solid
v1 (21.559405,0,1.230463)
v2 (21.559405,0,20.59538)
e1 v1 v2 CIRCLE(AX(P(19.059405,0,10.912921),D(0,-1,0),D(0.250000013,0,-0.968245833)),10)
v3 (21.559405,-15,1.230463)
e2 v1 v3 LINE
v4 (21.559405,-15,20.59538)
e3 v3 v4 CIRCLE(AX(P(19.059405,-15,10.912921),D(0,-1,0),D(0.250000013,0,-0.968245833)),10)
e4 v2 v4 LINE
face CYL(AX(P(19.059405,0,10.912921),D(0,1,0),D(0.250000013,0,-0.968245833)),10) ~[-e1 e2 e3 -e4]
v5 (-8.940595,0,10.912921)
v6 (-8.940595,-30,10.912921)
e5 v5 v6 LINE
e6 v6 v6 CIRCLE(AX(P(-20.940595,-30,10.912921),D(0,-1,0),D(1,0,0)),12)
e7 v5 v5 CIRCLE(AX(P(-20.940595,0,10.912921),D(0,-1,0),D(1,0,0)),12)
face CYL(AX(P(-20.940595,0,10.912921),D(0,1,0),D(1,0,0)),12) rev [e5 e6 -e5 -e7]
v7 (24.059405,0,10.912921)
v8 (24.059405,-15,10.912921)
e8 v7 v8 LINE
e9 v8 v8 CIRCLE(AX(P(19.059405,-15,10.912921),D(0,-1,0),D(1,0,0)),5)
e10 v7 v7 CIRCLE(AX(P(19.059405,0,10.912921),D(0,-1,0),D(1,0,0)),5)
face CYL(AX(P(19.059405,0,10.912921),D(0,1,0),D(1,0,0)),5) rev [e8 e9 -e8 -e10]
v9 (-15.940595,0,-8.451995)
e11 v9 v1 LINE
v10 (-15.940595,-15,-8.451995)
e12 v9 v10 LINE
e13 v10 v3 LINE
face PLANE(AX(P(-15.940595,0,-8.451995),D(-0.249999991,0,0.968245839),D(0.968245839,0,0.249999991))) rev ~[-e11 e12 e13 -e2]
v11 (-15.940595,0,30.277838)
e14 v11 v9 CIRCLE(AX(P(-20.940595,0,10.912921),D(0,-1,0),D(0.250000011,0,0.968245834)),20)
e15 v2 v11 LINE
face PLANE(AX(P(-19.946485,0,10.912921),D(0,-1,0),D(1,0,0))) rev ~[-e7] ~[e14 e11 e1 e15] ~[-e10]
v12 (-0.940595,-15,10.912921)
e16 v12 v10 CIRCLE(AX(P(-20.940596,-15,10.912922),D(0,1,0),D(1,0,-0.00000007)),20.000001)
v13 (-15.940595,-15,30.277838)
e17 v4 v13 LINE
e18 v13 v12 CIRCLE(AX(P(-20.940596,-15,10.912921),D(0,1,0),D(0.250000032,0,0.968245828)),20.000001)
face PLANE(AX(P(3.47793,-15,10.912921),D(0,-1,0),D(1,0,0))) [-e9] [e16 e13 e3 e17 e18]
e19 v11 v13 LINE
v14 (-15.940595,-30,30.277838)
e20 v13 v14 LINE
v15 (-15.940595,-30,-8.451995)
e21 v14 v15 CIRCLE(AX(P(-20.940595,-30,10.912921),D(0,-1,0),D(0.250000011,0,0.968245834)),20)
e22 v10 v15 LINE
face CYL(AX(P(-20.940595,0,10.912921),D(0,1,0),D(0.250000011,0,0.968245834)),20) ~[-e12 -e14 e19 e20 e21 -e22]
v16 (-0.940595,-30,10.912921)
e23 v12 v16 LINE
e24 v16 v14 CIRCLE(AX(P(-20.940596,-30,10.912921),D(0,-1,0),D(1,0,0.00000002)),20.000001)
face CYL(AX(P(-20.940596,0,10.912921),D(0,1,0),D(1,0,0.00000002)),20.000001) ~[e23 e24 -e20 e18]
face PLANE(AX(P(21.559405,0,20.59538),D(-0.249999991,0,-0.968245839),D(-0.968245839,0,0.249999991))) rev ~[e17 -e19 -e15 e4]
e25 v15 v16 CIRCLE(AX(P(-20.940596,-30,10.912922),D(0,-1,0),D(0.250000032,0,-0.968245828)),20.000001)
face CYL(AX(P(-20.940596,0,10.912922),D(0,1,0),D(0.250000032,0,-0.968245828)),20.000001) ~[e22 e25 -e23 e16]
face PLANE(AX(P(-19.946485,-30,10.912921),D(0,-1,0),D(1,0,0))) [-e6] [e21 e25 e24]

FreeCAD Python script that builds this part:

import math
import FreeCAD as App
import Part
import Sketcher
from FreeCAD import Vector
Q = App.Units.Quantity

doc = App.newDocument("Part")
params = doc.addObject("Spreadsheet::Sheet", "Params")
for row, (alias, value) in enumerate([
    ("sketch1_diameter", "10 mm"),
    ("sketch1_radius", "20.000001 mm"),
    ("sketch1_radius2", "10 mm"),
    ("pad1_length", "15 mm"),
    ("sketch2_diameter", "24 mm"),
    ("sketch2_radius", "20.000001 mm"),
    ("pad2_length", "30 mm"),
], start=1):
    params.set(f"A{row}", alias)
    params.set(f"B{row}", "=" + value)
    params.setAlias(f"B{row}", alias)

body = doc.addObject("PartDesign::Body", "Body")

# Sketch on XZ plane
sketch1 = doc.addObject("Sketcher::SketchObject", "Sketch")
body.addObject(sketch1)
sketch1.AttachmentSupport = (doc.XZ_Plane, [""])
sketch1.MapMode = "FlatFace"
sketch1.addGeometry([
    Part.ArcOfCircle(Part.Circle(Vector(-21, 11, 0), Vector(0, 0, 1), 20), math.radians(0), math.radians(76)),  # 0
    Part.ArcOfCircle(Part.Circle(Vector(-21, 11, 0), Vector(0, 0, 1), 20), math.radians(-76), math.radians(0)),  # 1
    Part.LineSegment(Vector(-16, -8, 0), Vector(22, 1, 0)),  # 2
    Part.ArcOfCircle(Part.Circle(Vector(19, 11, 0), Vector(0, 0, 1), 10), math.radians(-76), math.radians(76)),  # 3
    Part.LineSegment(Vector(22, 21, 0), Vector(-16, 30, 0)),  # 4
    Part.Circle(Vector(19, 11, 0), Vector(0, 0, 1), 5),  # 5
], False)
sketch1.addConstraint([
    Sketcher.Constraint("Tangent", 0, 1, 1, 2),
    Sketcher.Constraint("Tangent", 1, 1, 2, 1),
    Sketcher.Constraint("Tangent", 2, 2, 3, 1),
    Sketcher.Constraint("Tangent", 3, 2, 4, 1),
    Sketcher.Constraint("Tangent", 4, 2, 0, 2),
    Sketcher.Constraint("Coincident", 5, 3, 3, 3),
    Sketcher.Constraint("Equal", 0, 1),
    Sketcher.Constraint("Horizontal", 1, 3, 3, 3),
    Sketcher.Constraint("Horizontal", 5, 3, 0, 1),
    Sketcher.Constraint("Diameter", 5, Q("10 mm")),
    Sketcher.Constraint("Radius", 0, Q("20.000001 mm")),
    Sketcher.Constraint("Radius", 3, Q("10 mm")),
    Sketcher.Constraint("DistanceX", 0, 3, 3, 3, Q("40.000001 mm")),
    Sketcher.Constraint("DistanceY", -1, 1, 0, 3, Q("10.912921 mm")),
    Sketcher.Constraint("DistanceX", 0, 3, -1, 1, Q("20.940596 mm")),
])
sketch1.setExpression("Constraints[9]", "Params.sketch1_diameter")
sketch1.setExpression("Constraints[10]", "Params.sketch1_radius")
sketch1.setExpression("Constraints[11]", "Params.sketch1_radius2")
pad1 = doc.addObject("PartDesign::Pad", "Pad")
body.addObject(pad1)
pad1.Profile = sketch1
pad1.setExpression("Length", "Params.pad1_length")

# Sketch on XZ plane
sketch2 = doc.addObject("Sketcher::SketchObject", "Sketch001")
body.addObject(sketch2)
sketch2.AttachmentSupport = (doc.XZ_Plane, [""])
sketch2.MapMode = "FlatFace"
sketch2.addGeometry([
    Part.ArcOfCircle(Part.Circle(Vector(-21, 11, 0), Vector(0, 0, 1), 20), math.radians(-76), math.radians(0)),
    Part.ArcOfCircle(Part.Circle(Vector(-21, 11, 0), Vector(0, 0, 1), 20), math.radians(0), math.radians(76)),
    Part.ArcOfCircle(Part.Circle(Vector(-21, 11, 0), Vector(0, 0, 1), 20), math.radians(76), math.radians(284)),
    Part.Circle(Vector(-21, 11, 0), Vector(0, 0, 1), 12),
], False)
sketch2.addConstraint([
    Sketcher.Constraint("Tangent", 0, 2, 1, 1),
    Sketcher.Constraint("Tangent", 1, 2, 2, 1),
    Sketcher.Constraint("Tangent", 2, 2, 0, 1),
    Sketcher.Constraint("Coincident", 3, 3, 0, 3),
    Sketcher.Constraint("Horizontal", 3, 3, 0, 2),
    Sketcher.Constraint("Vertical", 1, 2, 2, 2),
    Sketcher.Constraint("Diameter", 3, Q("24 mm")),
    Sketcher.Constraint("Radius", 0, Q("20.000001 mm")),
    Sketcher.Constraint("DistanceX", 0, 3, 1, 2, Q("5.000001 mm")),
    Sketcher.Constraint("DistanceY", -1, 1, 1, 3, Q("10.912921 mm")),
    Sketcher.Constraint("DistanceX", 0, 3, -1, 1, Q("20.940596 mm")),
])
sketch2.setExpression("Constraints[6]", "Params.sketch2_diameter")
sketch2.setExpression("Constraints[7]", "Params.sketch2_radius")
pad2 = doc.addObject("PartDesign::Pad", "Pad001")
body.addObject(pad2)
pad2.Profile = sketch2
pad2.setExpression("Length", "Params.pad2_length")

doc.recompute()
